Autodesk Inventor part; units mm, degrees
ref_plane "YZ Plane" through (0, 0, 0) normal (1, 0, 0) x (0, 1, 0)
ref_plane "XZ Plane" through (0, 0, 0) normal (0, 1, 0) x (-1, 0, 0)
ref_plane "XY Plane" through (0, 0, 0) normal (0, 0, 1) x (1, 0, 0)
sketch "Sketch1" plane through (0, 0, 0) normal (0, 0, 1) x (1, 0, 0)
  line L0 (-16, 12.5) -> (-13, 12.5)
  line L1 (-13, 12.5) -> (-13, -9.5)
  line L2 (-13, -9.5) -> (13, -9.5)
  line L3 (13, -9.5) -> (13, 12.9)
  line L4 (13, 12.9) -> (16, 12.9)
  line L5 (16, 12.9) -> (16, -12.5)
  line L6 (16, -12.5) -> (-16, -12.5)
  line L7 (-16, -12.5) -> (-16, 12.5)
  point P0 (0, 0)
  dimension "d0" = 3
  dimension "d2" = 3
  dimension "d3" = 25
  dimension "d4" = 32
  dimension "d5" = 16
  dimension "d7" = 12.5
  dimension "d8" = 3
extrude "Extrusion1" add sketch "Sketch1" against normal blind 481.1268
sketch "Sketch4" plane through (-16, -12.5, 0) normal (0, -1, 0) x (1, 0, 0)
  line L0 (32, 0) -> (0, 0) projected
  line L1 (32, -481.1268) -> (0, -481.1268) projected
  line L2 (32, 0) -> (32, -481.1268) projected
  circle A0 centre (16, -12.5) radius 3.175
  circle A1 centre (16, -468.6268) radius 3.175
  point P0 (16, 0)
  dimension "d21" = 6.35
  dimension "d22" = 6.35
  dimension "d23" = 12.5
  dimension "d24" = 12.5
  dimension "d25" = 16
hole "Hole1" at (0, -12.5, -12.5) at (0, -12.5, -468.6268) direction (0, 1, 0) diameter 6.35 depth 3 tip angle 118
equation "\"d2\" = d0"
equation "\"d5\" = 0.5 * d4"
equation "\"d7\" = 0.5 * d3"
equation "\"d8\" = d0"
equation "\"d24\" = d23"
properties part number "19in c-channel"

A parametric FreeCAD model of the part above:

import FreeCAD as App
import Part
import Sketcher
from FreeCAD import Vector
Q = App.Units.Quantity

doc = App.newDocument("Part")
body = doc.addObject("PartDesign::Body", "Body")

# Sketch on XY plane
sketch1 = body.newObject("Sketcher::SketchObject", "Sketch")
sketch1.AttachmentSupport = (doc.getObject("XY_Plane"), [""])
sketch1.MapMode = "FlatFace"
sketch1.addGeometry([
    Part.LineSegment(Vector(-13, 12.5, 0), Vector(-16, 12.5, 0)),  # 0
    Part.LineSegment(Vector(-16, 12.5, 0), Vector(-16, -12.5, 0)),  # 1
    Part.LineSegment(Vector(-16, -12.5, 0), Vector(16, -12.5, 0)),  # 2
    Part.LineSegment(Vector(16, -12.5, 0), Vector(16, 12.9, 0)),  # 3
    Part.LineSegment(Vector(16, 12.9, 0), Vector(13, 12.9, 0)),  # 4
    Part.LineSegment(Vector(13, 12.9, 0), Vector(13, -9.5, 0)),  # 5
    Part.LineSegment(Vector(13, -9.5, 0), Vector(-13, -9.5, 0)),  # 6
    Part.LineSegment(Vector(-13, -9.5, 0), Vector(-13, 12.5, 0)),  # 7
], False)
sketch1.addConstraint([
    Sketcher.Constraint("Coincident", 0, 2, 1, 1),
    Sketcher.Constraint("Coincident", 1, 2, 2, 1),
    Sketcher.Constraint("Coincident", 2, 2, 3, 1),
    Sketcher.Constraint("Coincident", 3, 2, 4, 1),
    Sketcher.Constraint("Coincident", 4, 2, 5, 1),
    Sketcher.Constraint("Coincident", 5, 2, 6, 1),
    Sketcher.Constraint("Coincident", 6, 2, 7, 1),
    Sketcher.Constraint("Coincident", 7, 2, 0, 1),
    Sketcher.Constraint("Horizontal", 0),
    Sketcher.Constraint("Vertical", 1),
    Sketcher.Constraint("Horizontal", 2),
    Sketcher.Constraint("Vertical", 3),
    Sketcher.Constraint("Horizontal", 4),
    Sketcher.Constraint("Vertical", 5),
    Sketcher.Constraint("Horizontal", 6),
    Sketcher.Constraint("Vertical", 7),
    Sketcher.Constraint("Symmetric", 0, 2, 2, 2, -1, 1),
    Sketcher.Constraint("Equal", 0, 4),
    Sketcher.Constraint("DistanceX", 0, 2, 0, 1, Q("3 mm")),
    Sketcher.Constraint("DistanceX", 2, 1, 2, 2, Q("32 mm")),
    Sketcher.Constraint("DistanceY", 1, 2, 1, 1, Q("25 mm")),
    Sketcher.Constraint("DistanceY", 2, 2, 5, 2, Q("3 mm")),
    Sketcher.Constraint("DistanceY", 3, 1, 3, 2, Q("25.4 mm")),
])
pad1 = body.newObject("PartDesign::Pad", "Pad")
pad1.Profile = sketch1
pad1.Length = 481.1268
pad1.Reversed = True

# Sketch on XZ plane
sketch2 = body.newObject("Sketcher::SketchObject", "Sketch001")
sketch2.AttachmentSupport = (doc.getObject("XZ_Plane"), [""])
sketch2.MapMode = "FlatFace"
sketch2.AttachmentOffset = App.Placement(Vector(0, 0, 12.5), App.Rotation())
sketch2.addGeometry([
    Part.Circle(Vector(0, -12.5, 0), Vector(0, 0, 1), 3.2),
    Part.Circle(Vector(0, -468.6, 0), Vector(0, 0, 1), 3.2),
], False)
sketch2.addConstraint([
    Sketcher.Constraint("Equal", 0, 1),
    Sketcher.Constraint("PointOnObject", 0, 3, -2),
    Sketcher.Constraint("PointOnObject", 1, 3, -2),
    Sketcher.Constraint("Diameter", 0, Q("6.35 mm")),
    Sketcher.Constraint("DistanceY", 0, 3, -1, 1, Q("12.5 mm")),
    Sketcher.Constraint("DistanceY", 1, 3, -1, 1, Q("468.6268 mm")),
])
doc.recompute()
hole = body.newObject("PartDesign::Hole", "Hole")
hole.Profile = sketch2
hole.ThreadType = "None"
hole.Diameter = 6.35
hole.DepthType = "Dimension"
hole.Depth = 3
hole.DrillPoint = "Angled"
hole.DrillPointAngle = 118

doc.recompute()
